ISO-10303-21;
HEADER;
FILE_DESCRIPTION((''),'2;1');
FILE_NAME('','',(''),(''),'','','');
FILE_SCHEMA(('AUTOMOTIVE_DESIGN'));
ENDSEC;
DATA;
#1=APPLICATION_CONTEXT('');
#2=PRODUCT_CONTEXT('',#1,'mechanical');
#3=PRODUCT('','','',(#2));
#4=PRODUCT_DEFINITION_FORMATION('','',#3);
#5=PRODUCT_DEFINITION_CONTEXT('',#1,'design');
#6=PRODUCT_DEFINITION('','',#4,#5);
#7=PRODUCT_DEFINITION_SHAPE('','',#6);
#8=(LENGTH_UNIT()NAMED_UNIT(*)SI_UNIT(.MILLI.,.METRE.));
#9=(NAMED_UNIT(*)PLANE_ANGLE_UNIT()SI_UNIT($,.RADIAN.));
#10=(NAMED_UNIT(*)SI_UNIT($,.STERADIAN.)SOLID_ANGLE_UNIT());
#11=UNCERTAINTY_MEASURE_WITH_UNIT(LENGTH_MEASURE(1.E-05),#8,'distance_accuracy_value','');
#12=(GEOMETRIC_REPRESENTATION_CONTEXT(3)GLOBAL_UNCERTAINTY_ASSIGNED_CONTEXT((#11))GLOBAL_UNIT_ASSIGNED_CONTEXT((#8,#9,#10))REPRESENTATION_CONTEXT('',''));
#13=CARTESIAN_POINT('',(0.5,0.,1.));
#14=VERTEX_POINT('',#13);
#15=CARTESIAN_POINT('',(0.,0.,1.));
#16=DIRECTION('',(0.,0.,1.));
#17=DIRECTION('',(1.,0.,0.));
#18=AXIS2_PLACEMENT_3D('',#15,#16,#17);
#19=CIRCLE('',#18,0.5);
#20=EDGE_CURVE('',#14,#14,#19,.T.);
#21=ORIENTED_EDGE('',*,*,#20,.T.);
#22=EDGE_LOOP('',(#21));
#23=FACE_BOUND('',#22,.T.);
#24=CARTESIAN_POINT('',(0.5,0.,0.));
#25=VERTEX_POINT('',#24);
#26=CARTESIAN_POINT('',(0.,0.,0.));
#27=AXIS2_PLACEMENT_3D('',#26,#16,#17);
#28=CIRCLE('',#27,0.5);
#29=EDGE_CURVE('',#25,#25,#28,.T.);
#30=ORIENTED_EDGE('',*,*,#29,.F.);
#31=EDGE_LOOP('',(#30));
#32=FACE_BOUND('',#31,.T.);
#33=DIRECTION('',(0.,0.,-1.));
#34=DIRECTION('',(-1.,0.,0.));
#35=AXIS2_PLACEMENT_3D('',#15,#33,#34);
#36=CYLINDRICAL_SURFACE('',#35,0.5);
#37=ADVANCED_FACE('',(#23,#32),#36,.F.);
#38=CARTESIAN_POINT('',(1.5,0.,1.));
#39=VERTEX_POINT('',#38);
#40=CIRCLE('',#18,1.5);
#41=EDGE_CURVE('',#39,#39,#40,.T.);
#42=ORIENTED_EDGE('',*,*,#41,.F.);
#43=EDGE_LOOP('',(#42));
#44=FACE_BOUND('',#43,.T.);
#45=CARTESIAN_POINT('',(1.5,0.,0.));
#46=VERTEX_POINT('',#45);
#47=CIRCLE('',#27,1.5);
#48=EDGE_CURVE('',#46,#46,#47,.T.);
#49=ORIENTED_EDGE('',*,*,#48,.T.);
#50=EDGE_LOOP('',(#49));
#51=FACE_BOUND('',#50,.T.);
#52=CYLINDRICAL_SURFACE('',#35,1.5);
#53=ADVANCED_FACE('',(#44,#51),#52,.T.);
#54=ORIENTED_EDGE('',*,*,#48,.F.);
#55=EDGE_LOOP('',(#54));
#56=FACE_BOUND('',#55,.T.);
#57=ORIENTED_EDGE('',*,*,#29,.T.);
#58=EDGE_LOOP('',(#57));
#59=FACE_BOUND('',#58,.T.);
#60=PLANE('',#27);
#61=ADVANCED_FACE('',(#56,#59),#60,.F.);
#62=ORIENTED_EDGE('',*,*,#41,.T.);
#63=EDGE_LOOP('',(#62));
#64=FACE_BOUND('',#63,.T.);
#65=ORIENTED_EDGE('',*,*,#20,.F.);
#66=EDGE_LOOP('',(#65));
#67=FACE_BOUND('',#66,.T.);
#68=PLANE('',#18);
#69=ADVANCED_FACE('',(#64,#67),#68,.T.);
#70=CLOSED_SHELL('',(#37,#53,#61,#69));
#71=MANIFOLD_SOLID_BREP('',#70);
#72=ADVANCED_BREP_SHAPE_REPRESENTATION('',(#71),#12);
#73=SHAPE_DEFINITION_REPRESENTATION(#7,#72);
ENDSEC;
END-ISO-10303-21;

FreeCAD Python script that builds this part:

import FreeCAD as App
import Part
import Sketcher

V = App.Vector

doc = App.newDocument("Part")
body = doc.addObject("PartDesign::Body", "Body")

# Sketch on XY plane
sketch1 = doc.addObject("Sketcher::SketchObject", "Sketch")
body.addObject(sketch1)
sketch1.AttachmentSupport = (doc.XY_Plane, [""])
sketch1.MapMode = "FlatFace"
sketch1.addGeometry(Part.Circle(V(0, 0, 0), V(0, 0, 1), 1.5), False)
sketch1.addGeometry(Part.Circle(V(0, 0, 0), V(0, 0, 1), 0.5), False)
sketch1.addConstraint(Sketcher.Constraint("Coincident", 0, 3, -1, 1))
sketch1.addConstraint(Sketcher.Constraint("Coincident", 1, 3, -1, 1))
sketch1.addConstraint(Sketcher.Constraint("Diameter", 0, 3.0))
sketch1.addConstraint(Sketcher.Constraint("Diameter", 1, 1.0))
pad1 = doc.addObject("PartDesign::Pad", "Pad")
body.addObject(pad1)
pad1.Profile = sketch1
pad1.Length = 1

doc.recompute()
